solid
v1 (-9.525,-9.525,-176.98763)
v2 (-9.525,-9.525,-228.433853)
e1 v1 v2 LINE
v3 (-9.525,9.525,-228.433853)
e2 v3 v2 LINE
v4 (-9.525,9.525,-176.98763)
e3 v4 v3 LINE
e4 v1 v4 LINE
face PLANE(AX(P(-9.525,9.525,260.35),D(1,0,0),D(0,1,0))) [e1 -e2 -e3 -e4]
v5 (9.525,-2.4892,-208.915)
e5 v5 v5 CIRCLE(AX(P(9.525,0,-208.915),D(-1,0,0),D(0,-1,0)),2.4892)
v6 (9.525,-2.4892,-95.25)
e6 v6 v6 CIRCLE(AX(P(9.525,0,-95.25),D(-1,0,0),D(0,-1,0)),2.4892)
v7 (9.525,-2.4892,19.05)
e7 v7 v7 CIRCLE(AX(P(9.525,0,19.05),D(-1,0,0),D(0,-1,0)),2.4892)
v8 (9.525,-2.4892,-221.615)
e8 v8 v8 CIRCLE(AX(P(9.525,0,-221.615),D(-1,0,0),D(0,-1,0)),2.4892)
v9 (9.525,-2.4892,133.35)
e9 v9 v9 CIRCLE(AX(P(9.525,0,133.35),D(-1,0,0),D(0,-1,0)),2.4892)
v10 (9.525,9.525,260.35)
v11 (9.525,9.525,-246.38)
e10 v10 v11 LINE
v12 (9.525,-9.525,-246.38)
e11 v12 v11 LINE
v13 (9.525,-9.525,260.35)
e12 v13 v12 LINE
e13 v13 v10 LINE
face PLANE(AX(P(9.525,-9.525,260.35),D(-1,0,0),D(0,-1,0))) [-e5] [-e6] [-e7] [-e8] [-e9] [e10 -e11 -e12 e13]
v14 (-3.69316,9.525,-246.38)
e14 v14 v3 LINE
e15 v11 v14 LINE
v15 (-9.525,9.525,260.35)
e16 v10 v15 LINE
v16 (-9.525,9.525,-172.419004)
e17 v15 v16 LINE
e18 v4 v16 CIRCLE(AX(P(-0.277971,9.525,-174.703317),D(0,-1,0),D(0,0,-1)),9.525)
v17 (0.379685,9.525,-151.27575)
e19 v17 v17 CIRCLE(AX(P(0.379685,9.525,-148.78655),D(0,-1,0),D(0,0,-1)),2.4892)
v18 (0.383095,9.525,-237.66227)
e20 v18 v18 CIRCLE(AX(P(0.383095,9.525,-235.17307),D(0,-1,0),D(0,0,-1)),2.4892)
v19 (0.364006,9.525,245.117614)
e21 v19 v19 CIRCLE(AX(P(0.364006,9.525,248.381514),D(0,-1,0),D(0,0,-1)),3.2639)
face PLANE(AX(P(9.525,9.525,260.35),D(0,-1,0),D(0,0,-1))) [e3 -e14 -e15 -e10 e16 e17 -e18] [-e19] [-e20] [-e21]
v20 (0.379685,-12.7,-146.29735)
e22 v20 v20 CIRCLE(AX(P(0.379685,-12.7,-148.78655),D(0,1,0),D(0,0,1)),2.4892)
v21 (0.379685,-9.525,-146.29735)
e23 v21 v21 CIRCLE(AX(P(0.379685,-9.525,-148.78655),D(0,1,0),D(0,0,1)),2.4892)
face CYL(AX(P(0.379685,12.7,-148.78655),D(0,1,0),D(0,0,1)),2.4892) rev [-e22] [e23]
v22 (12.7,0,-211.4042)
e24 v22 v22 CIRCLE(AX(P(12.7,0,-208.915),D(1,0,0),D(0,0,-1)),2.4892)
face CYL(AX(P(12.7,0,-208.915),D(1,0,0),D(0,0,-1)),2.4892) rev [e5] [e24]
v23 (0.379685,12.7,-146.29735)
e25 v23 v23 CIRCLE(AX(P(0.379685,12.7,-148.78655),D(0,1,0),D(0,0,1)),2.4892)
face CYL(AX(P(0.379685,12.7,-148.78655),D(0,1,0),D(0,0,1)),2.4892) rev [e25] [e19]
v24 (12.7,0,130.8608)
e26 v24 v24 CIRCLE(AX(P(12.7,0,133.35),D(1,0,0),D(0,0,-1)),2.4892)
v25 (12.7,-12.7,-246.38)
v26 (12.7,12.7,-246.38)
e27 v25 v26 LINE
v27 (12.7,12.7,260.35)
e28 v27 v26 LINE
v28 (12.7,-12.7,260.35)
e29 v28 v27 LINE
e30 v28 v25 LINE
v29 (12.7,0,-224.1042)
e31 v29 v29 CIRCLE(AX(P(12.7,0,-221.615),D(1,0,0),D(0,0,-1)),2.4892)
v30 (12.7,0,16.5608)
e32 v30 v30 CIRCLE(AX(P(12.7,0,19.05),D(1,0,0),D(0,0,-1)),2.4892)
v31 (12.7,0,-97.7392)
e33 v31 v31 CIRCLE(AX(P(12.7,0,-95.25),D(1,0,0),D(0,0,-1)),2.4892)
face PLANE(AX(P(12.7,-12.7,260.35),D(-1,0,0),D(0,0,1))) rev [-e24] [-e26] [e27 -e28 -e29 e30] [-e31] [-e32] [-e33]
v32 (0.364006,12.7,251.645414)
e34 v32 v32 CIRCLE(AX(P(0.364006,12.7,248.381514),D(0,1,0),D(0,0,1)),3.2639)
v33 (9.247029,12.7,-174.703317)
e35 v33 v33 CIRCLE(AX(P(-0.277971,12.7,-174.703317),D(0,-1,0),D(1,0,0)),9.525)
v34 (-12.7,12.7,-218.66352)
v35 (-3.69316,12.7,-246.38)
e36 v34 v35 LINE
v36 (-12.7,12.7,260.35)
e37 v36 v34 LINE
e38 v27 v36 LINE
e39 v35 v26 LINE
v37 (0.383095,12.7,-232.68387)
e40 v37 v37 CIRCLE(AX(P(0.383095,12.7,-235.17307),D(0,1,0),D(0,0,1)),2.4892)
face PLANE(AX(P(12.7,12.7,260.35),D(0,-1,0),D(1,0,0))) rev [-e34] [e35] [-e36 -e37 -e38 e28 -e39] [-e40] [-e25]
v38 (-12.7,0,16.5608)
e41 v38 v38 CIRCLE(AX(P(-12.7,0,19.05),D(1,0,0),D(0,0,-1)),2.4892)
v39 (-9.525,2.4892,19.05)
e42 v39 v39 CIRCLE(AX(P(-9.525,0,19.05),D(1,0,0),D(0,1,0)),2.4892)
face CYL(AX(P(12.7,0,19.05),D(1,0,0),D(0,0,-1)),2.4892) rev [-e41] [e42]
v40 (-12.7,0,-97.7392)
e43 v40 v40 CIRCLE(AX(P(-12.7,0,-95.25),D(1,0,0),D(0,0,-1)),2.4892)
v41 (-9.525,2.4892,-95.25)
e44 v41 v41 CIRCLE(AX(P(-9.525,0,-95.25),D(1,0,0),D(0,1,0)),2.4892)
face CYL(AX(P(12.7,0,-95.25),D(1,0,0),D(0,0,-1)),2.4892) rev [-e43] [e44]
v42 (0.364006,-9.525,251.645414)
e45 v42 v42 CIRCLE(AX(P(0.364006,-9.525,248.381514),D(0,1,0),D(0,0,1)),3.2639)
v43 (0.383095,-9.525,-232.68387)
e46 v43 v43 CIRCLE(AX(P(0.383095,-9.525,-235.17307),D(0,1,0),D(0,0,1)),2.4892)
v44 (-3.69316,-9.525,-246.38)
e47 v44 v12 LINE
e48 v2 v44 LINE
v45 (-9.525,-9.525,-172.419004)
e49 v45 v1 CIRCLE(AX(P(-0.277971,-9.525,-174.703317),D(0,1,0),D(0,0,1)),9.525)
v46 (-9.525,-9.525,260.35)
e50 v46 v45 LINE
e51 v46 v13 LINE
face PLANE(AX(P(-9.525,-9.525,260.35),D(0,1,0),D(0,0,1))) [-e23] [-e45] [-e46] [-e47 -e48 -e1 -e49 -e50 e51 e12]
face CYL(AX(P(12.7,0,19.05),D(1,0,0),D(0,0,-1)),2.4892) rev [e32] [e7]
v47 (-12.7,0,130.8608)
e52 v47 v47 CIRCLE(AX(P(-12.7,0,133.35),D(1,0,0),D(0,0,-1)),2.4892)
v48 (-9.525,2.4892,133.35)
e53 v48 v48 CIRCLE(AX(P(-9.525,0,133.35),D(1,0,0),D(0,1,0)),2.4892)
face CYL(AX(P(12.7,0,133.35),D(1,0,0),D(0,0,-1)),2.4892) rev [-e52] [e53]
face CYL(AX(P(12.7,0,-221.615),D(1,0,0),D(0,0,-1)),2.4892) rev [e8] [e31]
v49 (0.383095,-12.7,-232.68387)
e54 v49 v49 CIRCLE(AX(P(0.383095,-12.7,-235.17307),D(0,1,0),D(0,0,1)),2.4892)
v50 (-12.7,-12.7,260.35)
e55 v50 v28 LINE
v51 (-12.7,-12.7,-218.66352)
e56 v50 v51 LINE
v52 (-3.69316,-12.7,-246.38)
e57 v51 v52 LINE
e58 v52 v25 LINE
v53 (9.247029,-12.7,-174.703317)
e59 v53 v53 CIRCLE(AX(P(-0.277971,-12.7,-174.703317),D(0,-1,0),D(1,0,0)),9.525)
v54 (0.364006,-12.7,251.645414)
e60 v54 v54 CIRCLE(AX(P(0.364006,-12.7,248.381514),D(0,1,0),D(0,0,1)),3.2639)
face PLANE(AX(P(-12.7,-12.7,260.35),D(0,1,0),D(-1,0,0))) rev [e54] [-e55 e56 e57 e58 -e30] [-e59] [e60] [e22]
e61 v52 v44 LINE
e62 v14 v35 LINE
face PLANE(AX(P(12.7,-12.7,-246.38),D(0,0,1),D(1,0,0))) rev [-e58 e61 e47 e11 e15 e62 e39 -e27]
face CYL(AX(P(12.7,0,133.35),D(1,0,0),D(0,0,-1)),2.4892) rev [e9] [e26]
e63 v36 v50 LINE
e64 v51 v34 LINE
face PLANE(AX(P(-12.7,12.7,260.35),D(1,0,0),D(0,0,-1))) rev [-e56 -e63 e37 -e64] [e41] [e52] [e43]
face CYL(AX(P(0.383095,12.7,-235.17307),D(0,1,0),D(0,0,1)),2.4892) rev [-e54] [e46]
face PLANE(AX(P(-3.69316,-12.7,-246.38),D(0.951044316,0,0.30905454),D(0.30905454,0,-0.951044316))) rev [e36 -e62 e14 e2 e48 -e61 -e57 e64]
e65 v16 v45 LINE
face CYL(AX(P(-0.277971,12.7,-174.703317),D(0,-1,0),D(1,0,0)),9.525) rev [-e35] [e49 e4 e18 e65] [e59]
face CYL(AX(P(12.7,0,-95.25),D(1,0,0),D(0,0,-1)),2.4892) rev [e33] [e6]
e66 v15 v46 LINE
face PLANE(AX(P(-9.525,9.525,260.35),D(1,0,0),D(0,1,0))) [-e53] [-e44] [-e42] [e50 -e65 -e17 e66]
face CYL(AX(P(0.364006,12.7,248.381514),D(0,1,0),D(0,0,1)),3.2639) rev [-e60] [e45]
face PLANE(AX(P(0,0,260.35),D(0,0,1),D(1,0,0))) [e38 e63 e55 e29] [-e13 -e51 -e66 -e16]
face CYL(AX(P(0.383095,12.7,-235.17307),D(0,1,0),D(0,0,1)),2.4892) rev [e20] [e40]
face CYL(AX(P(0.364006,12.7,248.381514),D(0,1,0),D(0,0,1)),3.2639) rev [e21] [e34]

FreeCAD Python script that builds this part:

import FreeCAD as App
import Part
import Sketcher

V = App.Vector
Q = App.Units.Quantity


def add_polygon(sketch, points):
    """Adds a closed chain of lines whose ends are joined by coincident constraints."""
    first, n = sketch.GeometryCount, len(points)
    for a, b in zip(points, points[1:] + points[:1]):
        sketch.addGeometry(Part.LineSegment(App.Vector(*a, 0), App.Vector(*b, 0)), False)
    for i in range(n):
        sketch.addConstraint(Sketcher.Constraint("Coincident", first + i, 2, first + (i + 1) % n, 1))

doc = App.newDocument("Part")
body = doc.addObject("PartDesign::Body", "Body")

sketch1 = doc.addObject("Sketcher::SketchObject", "Sketch")
body.addObject(sketch1)
sketch1.AttachmentSupport = (doc.XY_Plane, [""])
sketch1.MapMode = "FlatFace"
add_polygon(sketch1, [(-12.7, 12.7), (-12.7, -12.7), (12.7, -12.7), (12.7, 12.7)])
add_polygon(sketch1, [(9.525, -9.525), (-9.525, -9.525), (-9.525, 9.525), (9.525, 9.525)])
sketch1.addConstraint([
    Sketcher.Constraint("Vertical", 0),
    Sketcher.Constraint("Horizontal", 1),
    Sketcher.Constraint("Vertical", 2),
    Sketcher.Constraint("Horizontal", 3),
    Sketcher.Constraint("Horizontal", 4),
    Sketcher.Constraint("Vertical", 5),
    Sketcher.Constraint("Horizontal", 6),
    Sketcher.Constraint("Vertical", 7),
    Sketcher.Constraint("Symmetric", 0, 2, 2, 2, -1, 1),
    Sketcher.Constraint("Symmetric", 4, 2, 6, 2, -1, 1),
    Sketcher.Constraint("Equal", 3, 0),
    Sketcher.Constraint("Equal", 6, 5),
    Sketcher.Constraint("DistanceX", 1, 1, 1, 2, Q("1 in")),
    Sketcher.Constraint("DistanceX", 4, 2, 4, 1, Q("0.75 in")),
])
pad1 = doc.addObject("PartDesign::Pad", "Pad")
body.addObject(pad1)
pad1.Profile = sketch1
pad1.Type = "TwoLengths"
pad1.Length = Q("10.25 in")
pad1.Length2 = Q("10.25 in")

sketch2 = doc.addObject("Sketcher::SketchObject", "Sketch001")
body.addObject(sketch2)
sketch2.AttachmentSupport = (doc.XZ_Plane, [""])
sketch2.MapMode = "FlatFace"
sketch2.AttachmentOffset = App.Placement(V(0, 0, -0.5 * 25.4), App.Rotation())
add_polygon(sketch2, [(-12.7, -260.35), (-12.7, -218.66352), (-3.69316, -246.38), (12.7, -246.38), (12.7, -260.35)])
sketch2.addConstraint([
    Sketcher.Constraint("Vertical", 0),
    Sketcher.Constraint("Horizontal", 2),
    Sketcher.Constraint("Vertical", 3),
    Sketcher.Constraint("Horizontal", 4),
    Sketcher.Constraint("DistanceX", 4, 2, 4, 1, Q("1 in")),
    Sketcher.Constraint("DistanceY", 3, 2, 3, 1, Q("0.55 in")),
    Sketcher.Constraint("DistanceX", 0, 2, -1, 1, Q("0.5 in")),
    Sketcher.Constraint("DistanceY", 1, 2, -1, 1, Q("9.7 in")),
    Sketcher.Constraint("DistanceX", 2, 1, 2, 2, Q("0.6454 in")),
    Sketcher.Constraint("DistanceY", 0, 1, 0, 2, Q("1.6412 in")),
])
pocket1 = doc.addObject("PartDesign::Pocket", "Pocket")
body.addObject(pocket1)
pocket1.Profile = sketch2
pocket1.Length = Q("1 in")
pocket1.Reversed = True

sketch3 = doc.addObject("Sketcher::SketchObject", "Sketch002")
body.addObject(sketch3)
sketch3.AttachmentSupport = (doc.XZ_Plane, [""])
sketch3.MapMode = "FlatFace"
sketch3.AttachmentOffset = App.Placement(V(0, 0, 0.5 * 25.4), App.Rotation())
sketch3.addGeometry(Part.Circle(V(-0.277971, -174.703317, 0), V(0, 0, 1), 9.525), False)
sketch3.addConstraint([
    Sketcher.Constraint("Diameter", 0, Q("0.75 in")),
    Sketcher.Constraint("DistanceX", 0, 3, -1, 1, Q("0.277971 mm")),
    Sketcher.Constraint("DistanceY", 0, 3, -1, 1, Q("174.703317 mm")),
])
pocket2 = doc.addObject("PartDesign::Pocket", "Pocket001")
body.addObject(pocket2)
pocket2.Profile = sketch3
pocket2.Type = "ThroughAll"

sketch4 = doc.addObject("Sketcher::SketchObject", "Sketch003")
body.addObject(sketch4)
sketch4.AttachmentSupport = (doc.XZ_Plane, [""])
sketch4.MapMode = "FlatFace"
sketch4.AttachmentOffset = App.Placement(V(0, 0, -0.5 * 25.4), App.Rotation())
sketch4.addGeometry([
    Part.Circle(V(0.379685, -148.78655, 0), V(0, 0, 1), 2.4892),
    Part.Circle(V(0.383095, -235.17307, 0), V(0, 0, 1), 2.4892),
], False)
sketch4.addConstraint([
    Sketcher.Constraint("Equal", 0, 1),
    Sketcher.Constraint("Diameter", 0, Q("0.196 in")),
    Sketcher.Constraint("DistanceY", 0, 3, -1, 1, Q("148.78655 mm")),
    Sketcher.Constraint("DistanceY", 1, 3, -1, 1, Q("235.17307 mm")),
    Sketcher.Constraint("DistanceX", 0, 3, 1, 3, Q("0.00341 mm")),
    Sketcher.Constraint("DistanceX", -1, 1, 0, 3, Q("0.379685 mm")),
])
doc.recompute()
hole = doc.addObject("PartDesign::Hole", "Hole")
body.addObject(hole)
hole.Profile = sketch4
hole.ThreadType = "None"
hole.Diameter = Q("0.196 in")
hole.DepthType = "ThroughAll"
hole.Reversed = True

sketch5 = doc.addObject("Sketcher::SketchObject", "Sketch004")
body.addObject(sketch5)
sketch5.AttachmentSupport = (doc.XZ_Plane, [""])
sketch5.MapMode = "FlatFace"
sketch5.AttachmentOffset = App.Placement(V(0, 0, -0.5 * 25.4), App.Rotation())
sketch5.addGeometry(Part.Circle(V(0.364006, 248.381514, 0), V(0, 0, 1), 3.2639), False)
sketch5.addConstraint([
    Sketcher.Constraint("Diameter", 0, Q("0.257 in")),
    Sketcher.Constraint("DistanceX", -1, 1, 0, 3, Q("0.364006 mm")),
    Sketcher.Constraint("DistanceY", -1, 1, 0, 3, Q("248.381514 mm")),
])
doc.recompute()
hole2 = doc.addObject("PartDesign::Hole", "Hole001")
body.addObject(hole2)
hole2.Profile = sketch5
hole2.ThreadType = "None"
hole2.Diameter = Q("0.257 in")
hole2.DepthType = "ThroughAll"
hole2.Reversed = True

sketch6 = doc.addObject("Sketcher::SketchObject", "Sketch005")
body.addObject(sketch6)
sketch6.AttachmentSupport = (doc.YZ_Plane, [""])
sketch6.MapMode = "FlatFace"
sketch6.AttachmentOffset = App.Placement(V(0, 0, 0.5 * 25.4), App.Rotation())
sketch6.addGeometry([
    Part.Circle(V(0, -221.615, 0), V(0, 0, 1), 2.4892),
    Part.Circle(V(0, -208.915, 0), V(0, 0, 1), 2.4892),
], False)
sketch6.addConstraint([
    Sketcher.Constraint("Equal", 0, 1),
    Sketcher.Constraint("PointOnObject", 0, 3, -2),
    Sketcher.Constraint("PointOnObject", 1, 3, -2),
    Sketcher.Constraint("Diameter", 0, Q("0.196 in")),
    Sketcher.Constraint("DistanceY", 0, 3, 1, 3, Q("0.5 in")),
    Sketcher.Constraint("DistanceY", 0, 3, -1, 1, Q("8.725 in")),
])
doc.recompute()
hole3 = doc.addObject("PartDesign::Hole", "Hole002")
body.addObject(hole3)
hole3.Profile = sketch6
hole3.ThreadType = "None"
hole3.Diameter = Q("0.196 in")
hole3.DepthType = "Dimension"
hole3.Depth = Q("0.2 in")
hole3.DrillPoint = "Angled"
hole3.DrillPointAngle = 118

sketch7 = doc.addObject("Sketcher::SketchObject", "Sketch006")
body.addObject(sketch7)
sketch7.AttachmentSupport = (doc.YZ_Plane, [""])
sketch7.MapMode = "FlatFace"
sketch7.AttachmentOffset = App.Placement(V(0, 0, 0.5 * 25.4), App.Rotation())
sketch7.addGeometry([
    Part.Circle(V(0, 133.35, 0), V(0, 0, 1), 2.4892),
    Part.Circle(V(0, 19.05, 0), V(0, 0, 1), 2.4892),
    Part.Circle(V(0, -95.25, 0), V(0, 0, 1), 2.4892),
], False)
sketch7.addConstraint([
    Sketcher.Constraint("Equal", 0, 1),
    Sketcher.Constraint("Equal", 1, 2),
    Sketcher.Constraint("PointOnObject", 0, 3, -2),
    Sketcher.Constraint("PointOnObject", 1, 3, -2),
    Sketcher.Constraint("PointOnObject", 2, 3, -2),
    Sketcher.Constraint("Diameter", 0, Q("0.196 in")),
    Sketcher.Constraint("DistanceY", 2, 3, 0, 3, Q("9 in")),
    Sketcher.Constraint("DistanceY", 1, 3, 0, 3, Q("4.5 in")),
    Sketcher.Constraint("DistanceY", -1, 1, 0, 3, Q("5.25 in")),
])
doc.recompute()
hole4 = doc.addObject("PartDesign::Hole", "Hole003")
body.addObject(hole4)
hole4.Profile = sketch7
hole4.ThreadType = "None"
hole4.Diameter = Q("0.196 in")
hole4.DepthType = "ThroughAll"

doc.recompute()
